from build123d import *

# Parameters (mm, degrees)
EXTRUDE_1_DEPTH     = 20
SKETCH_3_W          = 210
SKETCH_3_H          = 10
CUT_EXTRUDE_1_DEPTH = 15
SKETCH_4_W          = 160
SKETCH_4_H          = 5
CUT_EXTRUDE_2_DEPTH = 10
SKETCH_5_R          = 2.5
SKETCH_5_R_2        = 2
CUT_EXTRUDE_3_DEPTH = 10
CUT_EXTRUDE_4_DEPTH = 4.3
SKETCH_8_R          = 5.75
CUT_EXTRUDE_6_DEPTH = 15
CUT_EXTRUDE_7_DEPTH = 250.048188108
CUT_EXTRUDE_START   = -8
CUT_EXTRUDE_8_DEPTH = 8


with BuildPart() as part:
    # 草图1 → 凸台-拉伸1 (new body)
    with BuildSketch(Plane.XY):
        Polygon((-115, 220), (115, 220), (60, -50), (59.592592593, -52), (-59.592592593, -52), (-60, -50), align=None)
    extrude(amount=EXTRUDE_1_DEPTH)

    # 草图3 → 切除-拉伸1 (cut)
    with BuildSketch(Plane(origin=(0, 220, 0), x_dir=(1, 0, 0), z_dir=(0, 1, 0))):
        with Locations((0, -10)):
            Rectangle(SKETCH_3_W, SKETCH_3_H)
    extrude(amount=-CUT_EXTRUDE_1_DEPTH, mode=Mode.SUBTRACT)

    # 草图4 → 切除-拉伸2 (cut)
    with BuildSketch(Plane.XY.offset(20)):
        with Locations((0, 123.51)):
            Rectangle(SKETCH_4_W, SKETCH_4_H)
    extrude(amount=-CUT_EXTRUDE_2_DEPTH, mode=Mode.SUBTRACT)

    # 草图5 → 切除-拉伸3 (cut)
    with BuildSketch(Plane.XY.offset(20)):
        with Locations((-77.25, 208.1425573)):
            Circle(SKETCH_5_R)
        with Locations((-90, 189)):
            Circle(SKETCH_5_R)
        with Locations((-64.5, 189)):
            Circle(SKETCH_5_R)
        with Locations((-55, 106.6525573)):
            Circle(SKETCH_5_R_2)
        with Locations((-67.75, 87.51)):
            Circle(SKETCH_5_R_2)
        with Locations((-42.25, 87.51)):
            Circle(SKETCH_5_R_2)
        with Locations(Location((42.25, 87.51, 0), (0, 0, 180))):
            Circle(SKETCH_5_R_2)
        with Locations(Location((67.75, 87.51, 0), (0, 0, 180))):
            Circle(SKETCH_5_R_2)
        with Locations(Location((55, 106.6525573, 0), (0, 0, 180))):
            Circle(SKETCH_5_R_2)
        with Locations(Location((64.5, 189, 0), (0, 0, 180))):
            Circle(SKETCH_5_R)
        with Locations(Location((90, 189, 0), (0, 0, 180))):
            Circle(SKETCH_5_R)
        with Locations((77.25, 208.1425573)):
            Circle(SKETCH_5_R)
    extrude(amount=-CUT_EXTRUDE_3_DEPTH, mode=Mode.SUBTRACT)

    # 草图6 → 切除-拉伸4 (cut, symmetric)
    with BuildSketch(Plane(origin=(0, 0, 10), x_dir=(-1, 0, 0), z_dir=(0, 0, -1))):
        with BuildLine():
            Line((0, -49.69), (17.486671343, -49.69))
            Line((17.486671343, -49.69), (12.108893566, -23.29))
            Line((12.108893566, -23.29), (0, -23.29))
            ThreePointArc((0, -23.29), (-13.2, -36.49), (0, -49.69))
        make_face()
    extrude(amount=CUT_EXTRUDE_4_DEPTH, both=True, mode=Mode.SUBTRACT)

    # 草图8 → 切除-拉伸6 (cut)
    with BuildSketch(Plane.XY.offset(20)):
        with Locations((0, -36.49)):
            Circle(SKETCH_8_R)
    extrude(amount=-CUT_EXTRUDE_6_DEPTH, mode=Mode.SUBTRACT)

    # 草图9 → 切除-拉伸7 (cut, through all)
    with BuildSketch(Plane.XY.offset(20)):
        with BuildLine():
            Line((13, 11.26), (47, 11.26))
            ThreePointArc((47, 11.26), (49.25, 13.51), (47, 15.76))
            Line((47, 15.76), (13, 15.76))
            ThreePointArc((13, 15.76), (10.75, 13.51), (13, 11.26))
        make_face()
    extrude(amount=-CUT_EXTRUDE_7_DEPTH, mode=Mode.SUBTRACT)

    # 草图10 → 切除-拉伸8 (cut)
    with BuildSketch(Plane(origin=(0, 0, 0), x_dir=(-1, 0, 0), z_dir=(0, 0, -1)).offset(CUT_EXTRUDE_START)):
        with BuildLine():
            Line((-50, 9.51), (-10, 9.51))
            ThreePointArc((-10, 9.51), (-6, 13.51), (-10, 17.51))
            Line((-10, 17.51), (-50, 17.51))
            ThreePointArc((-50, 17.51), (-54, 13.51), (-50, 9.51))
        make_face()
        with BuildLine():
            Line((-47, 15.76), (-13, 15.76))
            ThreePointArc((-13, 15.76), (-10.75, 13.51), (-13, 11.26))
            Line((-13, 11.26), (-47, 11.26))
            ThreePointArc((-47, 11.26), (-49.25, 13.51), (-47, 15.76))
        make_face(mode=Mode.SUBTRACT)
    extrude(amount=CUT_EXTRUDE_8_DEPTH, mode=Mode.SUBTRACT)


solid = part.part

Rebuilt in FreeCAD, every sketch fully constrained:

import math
import FreeCAD as App
import Part
import Sketcher

V = App.Vector
Q = App.Units.Quantity

doc = App.newDocument("Part")
body = doc.addObject("PartDesign::Body", "Body")

sketch1 = body.newObject("Sketcher::SketchObject", "Sketch")
sketch1.AttachmentSupport = (doc.getObject("XY_Plane"), [""])
sketch1.MapMode = "FlatFace"
sketch1.addGeometry(Part.LineSegment(V(115, 220, 0), V(-115, 220, 0)), False)
sketch1.addGeometry(Part.LineSegment(V(-115, 220, 0), V(-60, -50, 0)), False)
sketch1.addGeometry(Part.LineSegment(V(-60, -50, 0), V(-59.6, -52, 0)), False)
sketch1.addGeometry(Part.LineSegment(V(-59.6, -52, 0), V(59.6, -52, 0)), False)
sketch1.addGeometry(Part.LineSegment(V(59.6, -52, 0), V(60, -50, 0)), False)
sketch1.addGeometry(Part.LineSegment(V(60, -50, 0), V(115, 220, 0)), False)
sketch1.addConstraint(Sketcher.Constraint("Coincident", 0, 2, 1, 1))
sketch1.addConstraint(Sketcher.Constraint("Coincident", 1, 2, 2, 1))
sketch1.addConstraint(Sketcher.Constraint("Coincident", 2, 2, 3, 1))
sketch1.addConstraint(Sketcher.Constraint("Coincident", 3, 2, 4, 1))
sketch1.addConstraint(Sketcher.Constraint("Coincident", 4, 2, 5, 1))
sketch1.addConstraint(Sketcher.Constraint("Coincident", 5, 2, 0, 1))
sketch1.addConstraint(Sketcher.Constraint("Horizontal", 0))
sketch1.addConstraint(Sketcher.Constraint("Horizontal", 3))
sketch1.addConstraint(Sketcher.Constraint("Symmetric", 1, 2, 4, 2, -2))
sketch1.addConstraint(Sketcher.Constraint("Parallel", 1, 2))
sketch1.addConstraint(Sketcher.Constraint("Parallel", 4, 5))
sketch1.addConstraint(Sketcher.Constraint("Equal", 1, 5))
sketch1.addConstraint(Sketcher.Constraint("DistanceX", 0, 2, 0, 1, Q("230 mm")))
sketch1.addConstraint(Sketcher.Constraint("DistanceY", -1, 1, 0, 2, Q("220 mm")))
sketch1.addConstraint(Sketcher.Constraint("DistanceX", 1, 2, -1, 1, Q("60 mm")))
sketch1.addConstraint(Sketcher.Constraint("DistanceY", 1, 2, -1, 1, Q("50 mm")))
sketch1.addConstraint(Sketcher.Constraint("DistanceY", 2, 2, -1, 1, Q("52 mm")))
pad1 = body.newObject("PartDesign::Pad", "Pad")
pad1.Profile = sketch1
pad1.Length = 20

sketch2 = body.newObject("Sketcher::SketchObject", "Sketch001")
sketch2.AttachmentSupport = (doc.getObject("XZ_Plane"), [""])
sketch2.MapMode = "FlatFace"
sketch2.AttachmentOffset = App.Placement(V(0, 0, -220), App.Rotation())
sketch2.addGeometry(Part.LineSegment(V(-105, 5, 0), V(-105, 15, 0)), False)
sketch2.addGeometry(Part.LineSegment(V(-105, 15, 0), V(105, 15, 0)), False)
sketch2.addGeometry(Part.LineSegment(V(105, 15, 0), V(105, 5, 0)), False)
sketch2.addGeometry(Part.LineSegment(V(105, 5, 0), V(-105, 5, 0)), False)
sketch2.addConstraint(Sketcher.Constraint("Coincident", 0, 2, 1, 1))
sketch2.addConstraint(Sketcher.Constraint("Coincident", 1, 2, 2, 1))
sketch2.addConstraint(Sketcher.Constraint("Coincident", 2, 2, 3, 1))
sketch2.addConstraint(Sketcher.Constraint("Coincident", 3, 2, 0, 1))
sketch2.addConstraint(Sketcher.Constraint("Vertical", 0))
sketch2.addConstraint(Sketcher.Constraint("Horizontal", 1))
sketch2.addConstraint(Sketcher.Constraint("Vertical", 2))
sketch2.addConstraint(Sketcher.Constraint("Horizontal", 3))
sketch2.addConstraint(Sketcher.Constraint("DistanceX", 1, 1, 1, 2, Q("210 mm")))
sketch2.addConstraint(Sketcher.Constraint("DistanceY", 0, 1, 0, 2, Q("10 mm")))
sketch2.addConstraint(Sketcher.Constraint("DistanceX", 0, 2, -1, 1, Q("105 mm")))
sketch2.addConstraint(Sketcher.Constraint("DistanceY", -1, 1, 0, 2, Q("15 mm")))
pocket1 = body.newObject("PartDesign::Pocket", "Pocket")
pocket1.Profile = sketch2
pocket1.Length = 15
pocket1.Reversed = True

sketch3 = body.newObject("Sketcher::SketchObject", "Sketch002")
sketch3.AttachmentSupport = (doc.getObject("XY_Plane"), [""])
sketch3.MapMode = "FlatFace"
sketch3.AttachmentOffset = App.Placement(V(0, 0, 20), App.Rotation())
sketch3.addGeometry(Part.LineSegment(V(-80, 126, 0), V(-80, 121, 0)), False)
sketch3.addGeometry(Part.LineSegment(V(-80, 121, 0), V(80, 121, 0)), False)
sketch3.addGeometry(Part.LineSegment(V(80, 121, 0), V(80, 126, 0)), False)
sketch3.addGeometry(Part.LineSegment(V(80, 126, 0), V(-80, 126, 0)), False)
sketch3.addConstraint(Sketcher.Constraint("Coincident", 0, 2, 1, 1))
sketch3.addConstraint(Sketcher.Constraint("Coincident", 1, 2, 2, 1))
sketch3.addConstraint(Sketcher.Constraint("Coincident", 2, 2, 3, 1))
sketch3.addConstraint(Sketcher.Constraint("Coincident", 3, 2, 0, 1))
sketch3.addConstraint(Sketcher.Constraint("Vertical", 0))
sketch3.addConstraint(Sketcher.Constraint("Horizontal", 1))
sketch3.addConstraint(Sketcher.Constraint("Vertical", 2))
sketch3.addConstraint(Sketcher.Constraint("Horizontal", 3))
sketch3.addConstraint(Sketcher.Constraint("DistanceX", 1, 1, 1, 2, Q("160 mm")))
sketch3.addConstraint(Sketcher.Constraint("DistanceY", 0, 2, 0, 1, Q("5 mm")))
sketch3.addConstraint(Sketcher.Constraint("DistanceX", 0, 2, -1, 1, Q("80 mm")))
sketch3.addConstraint(Sketcher.Constraint("DistanceY", -1, 1, 0, 2, Q("121.01 mm")))
pocket2 = body.newObject("PartDesign::Pocket", "Pocket001")
pocket2.Profile = sketch3
pocket2.Length = 10

sketch4 = body.newObject("Sketcher::SketchObject", "Sketch003")
sketch4.AttachmentSupport = (doc.getObject("XY_Plane"), [""])
sketch4.MapMode = "FlatFace"
sketch4.AttachmentOffset = App.Placement(V(0, 0, 20), App.Rotation())
sketch4.addGeometry(Part.Circle(V(-77.2, 208.1, 0), V(0, 0, 1), 2.5), False)
sketch4.addGeometry(Part.Circle(V(-90, 189, 0), V(0, 0, 1), 2.5), False)
sketch4.addGeometry(Part.Circle(V(-64.5, 189, 0), V(0, 0, 1), 2.5), False)
sketch4.addGeometry(Part.Circle(V(-55, 106.7, 0), V(0, 0, 1), 2), False)
sketch4.addGeometry(Part.Circle(V(-67.8, 87.5, 0), V(0, 0, 1), 2), False)
sketch4.addGeometry(Part.Circle(V(-42.2, 87.5, 0), V(0, 0, 1), 2), False)
sketch4.addGeometry(Part.Circle(V(42.2, 87.5, 0), V(0, 0, 1), 2), False)
sketch4.addGeometry(Part.Circle(V(67.8, 87.5, 0), V(0, 0, 1), 2), False)
sketch4.addGeometry(Part.Circle(V(55, 106.7, 0), V(0, 0, 1), 2), False)
sketch4.addGeometry(Part.Circle(V(64.5, 189, 0), V(0, 0, 1), 2.5), False)
sketch4.addGeometry(Part.Circle(V(90, 189, 0), V(0, 0, 1), 2.5), False)
sketch4.addGeometry(Part.Circle(V(77.2, 208.1, 0), V(0, 0, 1), 2.5), False)
sketch4.addConstraint(Sketcher.Constraint("Equal", 0, 1))
sketch4.addConstraint(Sketcher.Constraint("Equal", 1, 2))
sketch4.addConstraint(Sketcher.Constraint("Equal", 3, 4))
sketch4.addConstraint(Sketcher.Constraint("Equal", 4, 5))
sketch4.addConstraint(Sketcher.Constraint("Equal", 5, 6))
sketch4.addConstraint(Sketcher.Constraint("Equal", 6, 7))
sketch4.addConstraint(Sketcher.Constraint("Equal", 7, 8))
sketch4.addConstraint(Sketcher.Constraint("Equal", 2, 9))
sketch4.addConstraint(Sketcher.Constraint("Equal", 9, 10))
sketch4.addConstraint(Sketcher.Constraint("Equal", 10, 11))
sketch4.addConstraint(Sketcher.Constraint("Symmetric", 5, 3, 6, 3, -2))
sketch4.addConstraint(Sketcher.Constraint("Symmetric", 4, 3, 7, 3, -2))
sketch4.addConstraint(Sketcher.Constraint("Symmetric", 3, 3, 8, 3, -2))
sketch4.addConstraint(Sketcher.Constraint("Symmetric", 2, 3, 9, 3, -2))
sketch4.addConstraint(Sketcher.Constraint("Symmetric", 1, 3, 10, 3, -2))
sketch4.addConstraint(Sketcher.Constraint("Symmetric", 0, 3, 11, 3, -2))
sketch4.addConstraint(Sketcher.Constraint("Horizontal", 1, 3, 2, 3))
sketch4.addConstraint(Sketcher.Constraint("Horizontal", 4, 3, 5, 3))
sketch4.addConstraint(Sketcher.Constraint("Diameter", 0, Q("5 mm")))
sketch4.addConstraint(Sketcher.Constraint("Diameter", 3, Q("4 mm")))
sketch4.addConstraint(Sketcher.Constraint("DistanceX", 1, 3, -1, 1, Q("90 mm")))
sketch4.addConstraint(Sketcher.Constraint("DistanceY", -1, 1, 1, 3, Q("189 mm")))
sketch4.addConstraint(Sketcher.Constraint("DistanceX", 3, 3, -1, 1, Q("55 mm")))
sketch4.addConstraint(Sketcher.Constraint("DistanceX", 0, 3, 5, 3, Q("35 mm")))
sketch4.addConstraint(Sketcher.Constraint("DistanceX", 4, 3, 6, 3, Q("110 mm")))
sketch4.addConstraint(Sketcher.Constraint("DistanceX", 2, 3, 9, 3, Q("129 mm")))
sketch4.addConstraint(Sketcher.Constraint("DistanceX", 0, 3, 4, 3, Q("9.5 mm")))
sketch4.addConstraint(Sketcher.Constraint("DistanceY", -1, 1, 4, 3, Q("87.51 mm")))
sketch4.addConstraint(Sketcher.Constraint("DistanceY", 3, 3, 0, 3, Q("101.49 mm")))
sketch4.addConstraint(Sketcher.Constraint("DistanceY", -1, 1, 0, 3, Q("208.142557 mm")))
pocket3 = body.newObject("PartDesign::Pocket", "Pocket002")
pocket3.Profile = sketch4
pocket3.Length = 10

sketch5 = body.newObject("Sketcher::SketchObject", "Sketch004")
sketch5.AttachmentSupport = (doc.getObject("XY_Plane"), [""])
sketch5.MapMode = "FlatFace"
sketch5.AttachmentOffset = App.Placement(V(0, 0, 10), App.Rotation())
sketch5.addGeometry(Part.LineSegment(V(0, -50, 0), V(-17, -50, 0)), False)
sketch5.addGeometry(Part.LineSegment(V(-17, -50, 0), V(-12, -23, 0)), False)
sketch5.addGeometry(Part.LineSegment(V(-12, -23, 0), V(0, -23, 0)), False)
sketch5.addGeometry(Part.ArcOfCircle(Part.Circle(V(0, -36, 0), V(0, 0, 1), 13), math.radians(-90), math.radians(90)), False)
sketch5.addConstraint(Sketcher.Constraint("Coincident", 0, 2, 1, 1))
sketch5.addConstraint(Sketcher.Constraint("Coincident", 1, 2, 2, 1))
sketch5.addConstraint(Sketcher.Constraint("Tangent", 2, 2, 3, 2))
sketch5.addConstraint(Sketcher.Constraint("Tangent", 3, 1, 0, 1))
sketch5.addConstraint(Sketcher.Constraint("Horizontal", 0))
sketch5.addConstraint(Sketcher.Constraint("Horizontal", 2))
sketch5.addConstraint(Sketcher.Constraint("PointOnObject", 3, 3, -2))
sketch5.addConstraint(Sketcher.Constraint("Radius", 3, Q("13.2 mm")))
sketch5.addConstraint(Sketcher.Constraint("DistanceY", 3, 3, -1, 1, Q("36.49 mm")))
sketch5.addConstraint(Sketcher.Constraint("DistanceX", 0, 2, 0, 1, Q("17.486671 mm")))
sketch5.addConstraint(Sketcher.Constraint("Distance", 1, Q("26.942169 mm")))
pocket4 = body.newObject("PartDesign::Pocket", "Pocket003")
pocket4.Profile = sketch5
pocket4.Length = 8.6
pocket4.Midplane = True

sketch6 = body.newObject("Sketcher::SketchObject", "Sketch005")
sketch6.AttachmentSupport = (doc.getObject("XY_Plane"), [""])
sketch6.MapMode = "FlatFace"
sketch6.AttachmentOffset = App.Placement(V(0, 0, 20), App.Rotation())
sketch6.addGeometry(Part.Circle(V(0, -36, 0), V(0, 0, 1), 6), False)
sketch6.addConstraint(Sketcher.Constraint("PointOnObject", 0, 3, -2))
sketch6.addConstraint(Sketcher.Constraint("Diameter", 0, Q("11.5 mm")))
sketch6.addConstraint(Sketcher.Constraint("DistanceY", 0, 3, -1, 1, Q("36.49 mm")))
pocket5 = body.newObject("PartDesign::Pocket", "Pocket004")
pocket5.Profile = sketch6
pocket5.Length = 15

sketch7 = body.newObject("Sketcher::SketchObject", "Sketch006")
sketch7.AttachmentSupport = (doc.getObject("XY_Plane"), [""])
sketch7.MapMode = "FlatFace"
sketch7.AttachmentOffset = App.Placement(V(0, 0, 20), App.Rotation())
sketch7.addGeometry(Part.LineSegment(V(13, 11.3, 0), V(47, 11.3, 0)), False)
sketch7.addGeometry(Part.ArcOfCircle(Part.Circle(V(47, 13.5, 0), V(0, 0, 1), 2.2), math.radians(-90), math.radians(90)), False)
sketch7.addGeometry(Part.LineSegment(V(47, 15.8, 0), V(13, 15.8, 0)), False)
sketch7.addGeometry(Part.ArcOfCircle(Part.Circle(V(13, 13.5, 0), V(0, 0, 1), 2.2), math.radians(90), math.radians(270)), False)
sketch7.addConstraint(Sketcher.Constraint("Tangent", 0, 2, 1, 1))
sketch7.addConstraint(Sketcher.Constraint("Tangent", 1, 2, 2, 1))
sketch7.addConstraint(Sketcher.Constraint("Tangent", 2, 2, 3, 1))
sketch7.addConstraint(Sketcher.Constraint("Tangent", 3, 2, 0, 1))
sketch7.addConstraint(Sketcher.Constraint("Horizontal", 0))
sketch7.addConstraint(Sketcher.Constraint("Horizontal", 2))
sketch7.addConstraint(Sketcher.Constraint("DistanceX", 0, 1, 0, 2, Q("34 mm")))
sketch7.addConstraint(Sketcher.Constraint("Radius", 1, Q("2.25 mm")))
sketch7.addConstraint(Sketcher.Constraint("DistanceX", -1, 1, 1, 3, Q("47 mm")))
sketch7.addConstraint(Sketcher.Constraint("DistanceY", -1, 1, 1, 3, Q("13.51 mm")))
pocket6 = body.newObject("PartDesign::Pocket", "Pocket005")
pocket6.Profile = sketch7
pocket6.Type = "ThroughAll"

sketch8 = body.newObject("Sketcher::SketchObject", "Sketch007")
sketch8.AttachmentSupport = (doc.getObject("XY_Plane"), [""])
sketch8.MapMode = "FlatFace"
sketch8.AttachmentOffset = App.Placement(V(0, 0, 8), App.Rotation())
sketch8.addGeometry(Part.LineSegment(V(50, 9.5, 0), V(10, 9.5, 0)), False)
sketch8.addGeometry(Part.ArcOfCircle(Part.Circle(V(10, 13.5, 0), V(0, 0, 1), 4), math.radians(90), math.radians(270)), False)
sketch8.addGeometry(Part.LineSegment(V(10, 17.5, 0), V(50, 17.5, 0)), False)
sketch8.addGeometry(Part.ArcOfCircle(Part.Circle(V(50, 13.5, 0), V(0, 0, 1), 4), math.radians(-90), math.radians(90)), False)
sketch8.addGeometry(Part.ArcOfCircle(Part.Circle(V(47, 13.5, 0), V(0, 0, 1), 2.2), math.radians(-90), math.radians(90)), False)
sketch8.addGeometry(Part.LineSegment(V(47, 15.8, 0), V(13, 15.8, 0)), False)
sketch8.addGeometry(Part.ArcOfCircle(Part.Circle(V(13, 13.5, 0), V(0, 0, 1), 2.2), math.radians(90), math.radians(270)), False)
sketch8.addGeometry(Part.LineSegment(V(13, 11.3, 0), V(47, 11.3, 0)), False)
sketch8.addConstraint(Sketcher.Constraint("Tangent", 0, 2, 1, 2))
sketch8.addConstraint(Sketcher.Constraint("Tangent", 1, 1, 2, 1))
sketch8.addConstraint(Sketcher.Constraint("Tangent", 2, 2, 3, 2))
sketch8.addConstraint(Sketcher.Constraint("Tangent", 3, 1, 0, 1))
sketch8.addConstraint(Sketcher.Constraint("Tangent", 4, 2, 5, 1))
sketch8.addConstraint(Sketcher.Constraint("Tangent", 5, 2, 6, 1))
sketch8.addConstraint(Sketcher.Constraint("Tangent", 6, 2, 7, 1))
sketch8.addConstraint(Sketcher.Constraint("Tangent", 7, 2, 4, 1))
sketch8.addConstraint(Sketcher.Constraint("Horizontal", 0))
sketch8.addConstraint(Sketcher.Constraint("Horizontal", 2))
sketch8.addConstraint(Sketcher.Constraint("Horizontal", 5))
sketch8.addConstraint(Sketcher.Constraint("Horizontal", 7))
sketch8.addConstraint(Sketcher.Constraint("Horizontal", 3, 3, 4, 3))
sketch8.addConstraint(Sketcher.Constraint("Radius", 1, Q("4 mm")))
sketch8.addConstraint(Sketcher.Constraint("DistanceX", 0, 2, 0, 1, Q("40 mm")))
sketch8.addConstraint(Sketcher.Constraint("DistanceX", 5, 2, 5, 1, Q("34 mm")))
sketch8.addConstraint(Sketcher.Constraint("Radius", 4, Q("2.25 mm")))
sketch8.addConstraint(Sketcher.Constraint("DistanceX", -1, 1, 1, 3, Q("10 mm")))
sketch8.addConstraint(Sketcher.Constraint("DistanceX", -1, 1, 4, 3, Q("47 mm")))
sketch8.addConstraint(Sketcher.Constraint("DistanceY", -1, 1, 1, 3, Q("13.51 mm")))
pocket7 = body.newObject("PartDesign::Pocket", "Pocket006")
pocket7.Profile = sketch8
pocket7.Length = 8

doc.recompute()
